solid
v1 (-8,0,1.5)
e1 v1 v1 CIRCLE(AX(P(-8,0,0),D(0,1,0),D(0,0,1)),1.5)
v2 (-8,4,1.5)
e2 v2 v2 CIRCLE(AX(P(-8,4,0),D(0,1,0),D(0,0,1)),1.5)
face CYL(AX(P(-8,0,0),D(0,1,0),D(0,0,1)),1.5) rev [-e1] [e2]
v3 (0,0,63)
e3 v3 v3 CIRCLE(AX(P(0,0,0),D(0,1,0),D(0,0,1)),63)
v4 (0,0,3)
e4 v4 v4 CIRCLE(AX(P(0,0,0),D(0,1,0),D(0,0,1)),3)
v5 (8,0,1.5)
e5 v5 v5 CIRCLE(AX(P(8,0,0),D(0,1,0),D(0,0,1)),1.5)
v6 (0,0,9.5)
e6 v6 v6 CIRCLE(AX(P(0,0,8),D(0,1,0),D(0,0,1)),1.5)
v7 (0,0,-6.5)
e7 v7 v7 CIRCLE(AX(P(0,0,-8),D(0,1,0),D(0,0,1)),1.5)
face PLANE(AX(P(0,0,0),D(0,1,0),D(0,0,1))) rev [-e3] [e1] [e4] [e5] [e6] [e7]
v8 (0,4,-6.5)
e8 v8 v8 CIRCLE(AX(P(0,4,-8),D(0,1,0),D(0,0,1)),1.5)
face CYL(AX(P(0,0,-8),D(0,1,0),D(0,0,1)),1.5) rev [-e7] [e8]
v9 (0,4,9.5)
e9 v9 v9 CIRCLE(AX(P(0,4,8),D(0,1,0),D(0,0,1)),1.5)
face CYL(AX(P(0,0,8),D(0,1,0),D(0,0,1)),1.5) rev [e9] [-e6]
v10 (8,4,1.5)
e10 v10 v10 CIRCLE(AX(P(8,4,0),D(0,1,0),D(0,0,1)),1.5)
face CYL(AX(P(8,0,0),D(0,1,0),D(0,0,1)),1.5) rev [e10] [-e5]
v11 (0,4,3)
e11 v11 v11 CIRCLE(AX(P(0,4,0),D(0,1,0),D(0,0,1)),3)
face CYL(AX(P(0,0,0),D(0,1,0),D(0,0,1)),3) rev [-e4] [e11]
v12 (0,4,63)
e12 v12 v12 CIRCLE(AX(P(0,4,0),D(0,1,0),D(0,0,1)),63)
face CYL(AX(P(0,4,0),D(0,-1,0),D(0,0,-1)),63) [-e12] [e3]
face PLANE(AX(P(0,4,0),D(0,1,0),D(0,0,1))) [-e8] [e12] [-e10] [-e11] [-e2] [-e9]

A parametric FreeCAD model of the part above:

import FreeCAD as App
import Part
import Sketcher
Q = App.Units.Quantity

doc = App.newDocument("Part")
body = doc.addObject("PartDesign::Body", "Body")

sketch1 = body.newObject("Sketcher::SketchObject", "Sketch")
sketch1.AttachmentSupport = (doc.getObject("XZ_Plane"), [""])
sketch1.MapMode = "FlatFace"
sketch1.addGeometry(Part.Circle(App.Vector(0, 0, 0), App.Vector(0, 0, 1), 63), False)
sketch1.addConstraint([
    Sketcher.Constraint("Coincident", 0, 3, -1, 1),
    Sketcher.Constraint("Diameter", 0, Q("126 mm")),
])
pad1 = body.newObject("PartDesign::Pad", "Pad")
pad1.Profile = sketch1
pad1.Length = 4
pad1.Reversed = True

sketch2 = body.newObject("Sketcher::SketchObject", "Sketch001")
sketch2.AttachmentSupport = (doc.getObject("XZ_Plane"), [""])
sketch2.MapMode = "FlatFace"
sketch2.AttachmentOffset = App.Placement(App.Vector(0, 0, -4), App.Rotation())
sketch2.addGeometry([
    Part.Circle(App.Vector(8, 0, 0), App.Vector(0, 0, 1), 1.5),
    Part.Circle(App.Vector(0, -8, 0), App.Vector(0, 0, 1), 1.5),
    Part.Circle(App.Vector(-8, 0, 0), App.Vector(0, 0, 1), 1.5),
    Part.Circle(App.Vector(0, 8, 0), App.Vector(0, 0, 1), 1.5),
    Part.Circle(App.Vector(0, 0, 0), App.Vector(0, 0, 1), 3),
], False)
sketch2.addConstraint([
    Sketcher.Constraint("Coincident", 4, 3, -1, 1),
    Sketcher.Constraint("Equal", 0, 1),
    Sketcher.Constraint("Equal", 1, 2),
    Sketcher.Constraint("Equal", 2, 3),
    Sketcher.Constraint("Symmetric", 0, 3, 2, 3, -1, 1),
    Sketcher.Constraint("Symmetric", 1, 3, 3, 3, -1, 1),
    Sketcher.Constraint("PointOnObject", 0, 3, -1),
    Sketcher.Constraint("PointOnObject", 1, 3, -2),
    Sketcher.Constraint("Diameter", 0, Q("3 mm")),
    Sketcher.Constraint("Diameter", 4, Q("6 mm")),
    Sketcher.Constraint("DistanceX", -1, 1, 0, 3, Q("8 mm")),
    Sketcher.Constraint("DistanceY", 1, 3, -1, 1, Q("8 mm")),
])
pocket1 = body.newObject("PartDesign::Pocket", "Pocket")
pocket1.Profile = sketch2
pocket1.Type = "ThroughAll"
pocket1.Reversed = True

doc.recompute()
